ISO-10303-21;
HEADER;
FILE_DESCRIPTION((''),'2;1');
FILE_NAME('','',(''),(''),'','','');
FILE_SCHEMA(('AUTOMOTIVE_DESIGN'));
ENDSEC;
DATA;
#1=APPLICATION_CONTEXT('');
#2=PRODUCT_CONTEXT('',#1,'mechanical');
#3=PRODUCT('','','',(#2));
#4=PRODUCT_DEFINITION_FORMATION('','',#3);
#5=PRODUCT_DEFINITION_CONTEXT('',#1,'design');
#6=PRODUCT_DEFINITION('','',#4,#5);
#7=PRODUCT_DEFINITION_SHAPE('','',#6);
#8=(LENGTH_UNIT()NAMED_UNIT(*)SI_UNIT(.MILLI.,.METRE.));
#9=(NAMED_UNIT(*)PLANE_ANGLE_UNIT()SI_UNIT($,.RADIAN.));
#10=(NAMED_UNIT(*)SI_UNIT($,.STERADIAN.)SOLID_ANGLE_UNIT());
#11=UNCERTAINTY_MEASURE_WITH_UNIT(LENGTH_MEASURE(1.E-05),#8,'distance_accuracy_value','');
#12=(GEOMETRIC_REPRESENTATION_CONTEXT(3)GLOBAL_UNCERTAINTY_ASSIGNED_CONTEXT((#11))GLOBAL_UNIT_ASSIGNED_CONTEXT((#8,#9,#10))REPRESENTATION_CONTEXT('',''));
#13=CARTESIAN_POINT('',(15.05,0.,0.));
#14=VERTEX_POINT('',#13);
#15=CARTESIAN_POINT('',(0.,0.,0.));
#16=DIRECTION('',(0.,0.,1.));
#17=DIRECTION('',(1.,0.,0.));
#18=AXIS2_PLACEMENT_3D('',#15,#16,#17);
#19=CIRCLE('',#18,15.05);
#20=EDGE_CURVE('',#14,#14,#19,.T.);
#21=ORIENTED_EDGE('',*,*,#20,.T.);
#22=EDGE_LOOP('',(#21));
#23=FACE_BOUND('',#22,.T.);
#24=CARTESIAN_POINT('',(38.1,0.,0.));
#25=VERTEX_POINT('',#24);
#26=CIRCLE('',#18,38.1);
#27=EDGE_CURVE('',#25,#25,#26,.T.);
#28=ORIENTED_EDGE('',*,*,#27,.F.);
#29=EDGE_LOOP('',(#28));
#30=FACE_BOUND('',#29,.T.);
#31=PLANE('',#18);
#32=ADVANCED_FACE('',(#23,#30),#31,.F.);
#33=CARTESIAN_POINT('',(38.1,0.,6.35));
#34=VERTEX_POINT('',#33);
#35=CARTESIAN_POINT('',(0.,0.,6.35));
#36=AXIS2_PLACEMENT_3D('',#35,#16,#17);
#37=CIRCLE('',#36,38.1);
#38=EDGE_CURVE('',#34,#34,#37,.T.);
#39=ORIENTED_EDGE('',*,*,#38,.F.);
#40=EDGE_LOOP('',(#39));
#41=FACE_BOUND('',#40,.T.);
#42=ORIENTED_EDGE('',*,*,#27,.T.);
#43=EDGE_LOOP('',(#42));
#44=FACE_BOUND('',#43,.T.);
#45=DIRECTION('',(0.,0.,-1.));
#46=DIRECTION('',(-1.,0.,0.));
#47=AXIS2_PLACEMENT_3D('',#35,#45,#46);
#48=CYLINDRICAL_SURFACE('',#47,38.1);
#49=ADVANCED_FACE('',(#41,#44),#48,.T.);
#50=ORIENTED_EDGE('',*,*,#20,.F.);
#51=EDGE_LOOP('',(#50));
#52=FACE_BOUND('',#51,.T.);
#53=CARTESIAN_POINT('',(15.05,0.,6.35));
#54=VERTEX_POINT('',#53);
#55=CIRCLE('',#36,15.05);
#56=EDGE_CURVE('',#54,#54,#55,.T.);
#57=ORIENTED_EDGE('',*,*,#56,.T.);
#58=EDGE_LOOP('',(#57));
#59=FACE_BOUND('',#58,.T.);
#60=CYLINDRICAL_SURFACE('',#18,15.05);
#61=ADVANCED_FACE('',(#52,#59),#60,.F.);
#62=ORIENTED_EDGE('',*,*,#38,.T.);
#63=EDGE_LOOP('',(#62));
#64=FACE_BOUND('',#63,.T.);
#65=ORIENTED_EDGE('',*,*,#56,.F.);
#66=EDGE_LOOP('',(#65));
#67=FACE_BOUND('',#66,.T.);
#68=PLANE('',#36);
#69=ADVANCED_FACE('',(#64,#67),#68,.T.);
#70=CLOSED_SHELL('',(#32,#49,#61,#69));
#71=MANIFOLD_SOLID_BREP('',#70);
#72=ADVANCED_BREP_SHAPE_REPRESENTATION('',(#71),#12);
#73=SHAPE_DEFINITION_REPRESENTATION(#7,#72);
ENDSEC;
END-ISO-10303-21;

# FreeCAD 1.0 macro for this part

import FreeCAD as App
import Part
import Sketcher
Q = App.Units.Quantity

doc = App.newDocument("Part")
body = doc.addObject("PartDesign::Body", "Body")

# Sketch on XY plane
sketch1 = doc.addObject("Sketcher::SketchObject", "Sketch")
body.addObject(sketch1)
sketch1.AttachmentSupport = (doc.XY_Plane, [""])
sketch1.MapMode = "FlatFace"
sketch1.addGeometry(Part.Circle(App.Vector(0, 0, 0), App.Vector(0, 0, 1), 38.1), False)
sketch1.addConstraint([
    Sketcher.Constraint("Coincident", 0, 3, -1, 1),
    Sketcher.Constraint("Diameter", 0, Q("3 in")),
])
pad1 = doc.addObject("PartDesign::Pad", "Pad")
body.addObject(pad1)
pad1.Profile = sketch1
pad1.Length = Q("0.25 in")

# Sketch on XY plane
sketch2 = doc.addObject("Sketcher::SketchObject", "Sketch001")
body.addObject(sketch2)
sketch2.AttachmentSupport = (doc.XY_Plane, [""])
sketch2.MapMode = "FlatFace"
sketch2.AttachmentOffset = App.Placement(App.Vector(0, 0, 0.25 * 25.4), App.Rotation())
sketch2.addGeometry(Part.Circle(App.Vector(0, 0, 0), App.Vector(0, 0, 1), 15.05), False)
sketch2.addConstraint([
    Sketcher.Constraint("Coincident", 0, 3, -1, 1),
    Sketcher.Constraint("Diameter", 0, 30.1),
])
pocket1 = doc.addObject("PartDesign::Pocket", "Pocket")
body.addObject(pocket1)
pocket1.Profile = sketch2
pocket1.Length = Q("0.25 in")

doc.recompute()
